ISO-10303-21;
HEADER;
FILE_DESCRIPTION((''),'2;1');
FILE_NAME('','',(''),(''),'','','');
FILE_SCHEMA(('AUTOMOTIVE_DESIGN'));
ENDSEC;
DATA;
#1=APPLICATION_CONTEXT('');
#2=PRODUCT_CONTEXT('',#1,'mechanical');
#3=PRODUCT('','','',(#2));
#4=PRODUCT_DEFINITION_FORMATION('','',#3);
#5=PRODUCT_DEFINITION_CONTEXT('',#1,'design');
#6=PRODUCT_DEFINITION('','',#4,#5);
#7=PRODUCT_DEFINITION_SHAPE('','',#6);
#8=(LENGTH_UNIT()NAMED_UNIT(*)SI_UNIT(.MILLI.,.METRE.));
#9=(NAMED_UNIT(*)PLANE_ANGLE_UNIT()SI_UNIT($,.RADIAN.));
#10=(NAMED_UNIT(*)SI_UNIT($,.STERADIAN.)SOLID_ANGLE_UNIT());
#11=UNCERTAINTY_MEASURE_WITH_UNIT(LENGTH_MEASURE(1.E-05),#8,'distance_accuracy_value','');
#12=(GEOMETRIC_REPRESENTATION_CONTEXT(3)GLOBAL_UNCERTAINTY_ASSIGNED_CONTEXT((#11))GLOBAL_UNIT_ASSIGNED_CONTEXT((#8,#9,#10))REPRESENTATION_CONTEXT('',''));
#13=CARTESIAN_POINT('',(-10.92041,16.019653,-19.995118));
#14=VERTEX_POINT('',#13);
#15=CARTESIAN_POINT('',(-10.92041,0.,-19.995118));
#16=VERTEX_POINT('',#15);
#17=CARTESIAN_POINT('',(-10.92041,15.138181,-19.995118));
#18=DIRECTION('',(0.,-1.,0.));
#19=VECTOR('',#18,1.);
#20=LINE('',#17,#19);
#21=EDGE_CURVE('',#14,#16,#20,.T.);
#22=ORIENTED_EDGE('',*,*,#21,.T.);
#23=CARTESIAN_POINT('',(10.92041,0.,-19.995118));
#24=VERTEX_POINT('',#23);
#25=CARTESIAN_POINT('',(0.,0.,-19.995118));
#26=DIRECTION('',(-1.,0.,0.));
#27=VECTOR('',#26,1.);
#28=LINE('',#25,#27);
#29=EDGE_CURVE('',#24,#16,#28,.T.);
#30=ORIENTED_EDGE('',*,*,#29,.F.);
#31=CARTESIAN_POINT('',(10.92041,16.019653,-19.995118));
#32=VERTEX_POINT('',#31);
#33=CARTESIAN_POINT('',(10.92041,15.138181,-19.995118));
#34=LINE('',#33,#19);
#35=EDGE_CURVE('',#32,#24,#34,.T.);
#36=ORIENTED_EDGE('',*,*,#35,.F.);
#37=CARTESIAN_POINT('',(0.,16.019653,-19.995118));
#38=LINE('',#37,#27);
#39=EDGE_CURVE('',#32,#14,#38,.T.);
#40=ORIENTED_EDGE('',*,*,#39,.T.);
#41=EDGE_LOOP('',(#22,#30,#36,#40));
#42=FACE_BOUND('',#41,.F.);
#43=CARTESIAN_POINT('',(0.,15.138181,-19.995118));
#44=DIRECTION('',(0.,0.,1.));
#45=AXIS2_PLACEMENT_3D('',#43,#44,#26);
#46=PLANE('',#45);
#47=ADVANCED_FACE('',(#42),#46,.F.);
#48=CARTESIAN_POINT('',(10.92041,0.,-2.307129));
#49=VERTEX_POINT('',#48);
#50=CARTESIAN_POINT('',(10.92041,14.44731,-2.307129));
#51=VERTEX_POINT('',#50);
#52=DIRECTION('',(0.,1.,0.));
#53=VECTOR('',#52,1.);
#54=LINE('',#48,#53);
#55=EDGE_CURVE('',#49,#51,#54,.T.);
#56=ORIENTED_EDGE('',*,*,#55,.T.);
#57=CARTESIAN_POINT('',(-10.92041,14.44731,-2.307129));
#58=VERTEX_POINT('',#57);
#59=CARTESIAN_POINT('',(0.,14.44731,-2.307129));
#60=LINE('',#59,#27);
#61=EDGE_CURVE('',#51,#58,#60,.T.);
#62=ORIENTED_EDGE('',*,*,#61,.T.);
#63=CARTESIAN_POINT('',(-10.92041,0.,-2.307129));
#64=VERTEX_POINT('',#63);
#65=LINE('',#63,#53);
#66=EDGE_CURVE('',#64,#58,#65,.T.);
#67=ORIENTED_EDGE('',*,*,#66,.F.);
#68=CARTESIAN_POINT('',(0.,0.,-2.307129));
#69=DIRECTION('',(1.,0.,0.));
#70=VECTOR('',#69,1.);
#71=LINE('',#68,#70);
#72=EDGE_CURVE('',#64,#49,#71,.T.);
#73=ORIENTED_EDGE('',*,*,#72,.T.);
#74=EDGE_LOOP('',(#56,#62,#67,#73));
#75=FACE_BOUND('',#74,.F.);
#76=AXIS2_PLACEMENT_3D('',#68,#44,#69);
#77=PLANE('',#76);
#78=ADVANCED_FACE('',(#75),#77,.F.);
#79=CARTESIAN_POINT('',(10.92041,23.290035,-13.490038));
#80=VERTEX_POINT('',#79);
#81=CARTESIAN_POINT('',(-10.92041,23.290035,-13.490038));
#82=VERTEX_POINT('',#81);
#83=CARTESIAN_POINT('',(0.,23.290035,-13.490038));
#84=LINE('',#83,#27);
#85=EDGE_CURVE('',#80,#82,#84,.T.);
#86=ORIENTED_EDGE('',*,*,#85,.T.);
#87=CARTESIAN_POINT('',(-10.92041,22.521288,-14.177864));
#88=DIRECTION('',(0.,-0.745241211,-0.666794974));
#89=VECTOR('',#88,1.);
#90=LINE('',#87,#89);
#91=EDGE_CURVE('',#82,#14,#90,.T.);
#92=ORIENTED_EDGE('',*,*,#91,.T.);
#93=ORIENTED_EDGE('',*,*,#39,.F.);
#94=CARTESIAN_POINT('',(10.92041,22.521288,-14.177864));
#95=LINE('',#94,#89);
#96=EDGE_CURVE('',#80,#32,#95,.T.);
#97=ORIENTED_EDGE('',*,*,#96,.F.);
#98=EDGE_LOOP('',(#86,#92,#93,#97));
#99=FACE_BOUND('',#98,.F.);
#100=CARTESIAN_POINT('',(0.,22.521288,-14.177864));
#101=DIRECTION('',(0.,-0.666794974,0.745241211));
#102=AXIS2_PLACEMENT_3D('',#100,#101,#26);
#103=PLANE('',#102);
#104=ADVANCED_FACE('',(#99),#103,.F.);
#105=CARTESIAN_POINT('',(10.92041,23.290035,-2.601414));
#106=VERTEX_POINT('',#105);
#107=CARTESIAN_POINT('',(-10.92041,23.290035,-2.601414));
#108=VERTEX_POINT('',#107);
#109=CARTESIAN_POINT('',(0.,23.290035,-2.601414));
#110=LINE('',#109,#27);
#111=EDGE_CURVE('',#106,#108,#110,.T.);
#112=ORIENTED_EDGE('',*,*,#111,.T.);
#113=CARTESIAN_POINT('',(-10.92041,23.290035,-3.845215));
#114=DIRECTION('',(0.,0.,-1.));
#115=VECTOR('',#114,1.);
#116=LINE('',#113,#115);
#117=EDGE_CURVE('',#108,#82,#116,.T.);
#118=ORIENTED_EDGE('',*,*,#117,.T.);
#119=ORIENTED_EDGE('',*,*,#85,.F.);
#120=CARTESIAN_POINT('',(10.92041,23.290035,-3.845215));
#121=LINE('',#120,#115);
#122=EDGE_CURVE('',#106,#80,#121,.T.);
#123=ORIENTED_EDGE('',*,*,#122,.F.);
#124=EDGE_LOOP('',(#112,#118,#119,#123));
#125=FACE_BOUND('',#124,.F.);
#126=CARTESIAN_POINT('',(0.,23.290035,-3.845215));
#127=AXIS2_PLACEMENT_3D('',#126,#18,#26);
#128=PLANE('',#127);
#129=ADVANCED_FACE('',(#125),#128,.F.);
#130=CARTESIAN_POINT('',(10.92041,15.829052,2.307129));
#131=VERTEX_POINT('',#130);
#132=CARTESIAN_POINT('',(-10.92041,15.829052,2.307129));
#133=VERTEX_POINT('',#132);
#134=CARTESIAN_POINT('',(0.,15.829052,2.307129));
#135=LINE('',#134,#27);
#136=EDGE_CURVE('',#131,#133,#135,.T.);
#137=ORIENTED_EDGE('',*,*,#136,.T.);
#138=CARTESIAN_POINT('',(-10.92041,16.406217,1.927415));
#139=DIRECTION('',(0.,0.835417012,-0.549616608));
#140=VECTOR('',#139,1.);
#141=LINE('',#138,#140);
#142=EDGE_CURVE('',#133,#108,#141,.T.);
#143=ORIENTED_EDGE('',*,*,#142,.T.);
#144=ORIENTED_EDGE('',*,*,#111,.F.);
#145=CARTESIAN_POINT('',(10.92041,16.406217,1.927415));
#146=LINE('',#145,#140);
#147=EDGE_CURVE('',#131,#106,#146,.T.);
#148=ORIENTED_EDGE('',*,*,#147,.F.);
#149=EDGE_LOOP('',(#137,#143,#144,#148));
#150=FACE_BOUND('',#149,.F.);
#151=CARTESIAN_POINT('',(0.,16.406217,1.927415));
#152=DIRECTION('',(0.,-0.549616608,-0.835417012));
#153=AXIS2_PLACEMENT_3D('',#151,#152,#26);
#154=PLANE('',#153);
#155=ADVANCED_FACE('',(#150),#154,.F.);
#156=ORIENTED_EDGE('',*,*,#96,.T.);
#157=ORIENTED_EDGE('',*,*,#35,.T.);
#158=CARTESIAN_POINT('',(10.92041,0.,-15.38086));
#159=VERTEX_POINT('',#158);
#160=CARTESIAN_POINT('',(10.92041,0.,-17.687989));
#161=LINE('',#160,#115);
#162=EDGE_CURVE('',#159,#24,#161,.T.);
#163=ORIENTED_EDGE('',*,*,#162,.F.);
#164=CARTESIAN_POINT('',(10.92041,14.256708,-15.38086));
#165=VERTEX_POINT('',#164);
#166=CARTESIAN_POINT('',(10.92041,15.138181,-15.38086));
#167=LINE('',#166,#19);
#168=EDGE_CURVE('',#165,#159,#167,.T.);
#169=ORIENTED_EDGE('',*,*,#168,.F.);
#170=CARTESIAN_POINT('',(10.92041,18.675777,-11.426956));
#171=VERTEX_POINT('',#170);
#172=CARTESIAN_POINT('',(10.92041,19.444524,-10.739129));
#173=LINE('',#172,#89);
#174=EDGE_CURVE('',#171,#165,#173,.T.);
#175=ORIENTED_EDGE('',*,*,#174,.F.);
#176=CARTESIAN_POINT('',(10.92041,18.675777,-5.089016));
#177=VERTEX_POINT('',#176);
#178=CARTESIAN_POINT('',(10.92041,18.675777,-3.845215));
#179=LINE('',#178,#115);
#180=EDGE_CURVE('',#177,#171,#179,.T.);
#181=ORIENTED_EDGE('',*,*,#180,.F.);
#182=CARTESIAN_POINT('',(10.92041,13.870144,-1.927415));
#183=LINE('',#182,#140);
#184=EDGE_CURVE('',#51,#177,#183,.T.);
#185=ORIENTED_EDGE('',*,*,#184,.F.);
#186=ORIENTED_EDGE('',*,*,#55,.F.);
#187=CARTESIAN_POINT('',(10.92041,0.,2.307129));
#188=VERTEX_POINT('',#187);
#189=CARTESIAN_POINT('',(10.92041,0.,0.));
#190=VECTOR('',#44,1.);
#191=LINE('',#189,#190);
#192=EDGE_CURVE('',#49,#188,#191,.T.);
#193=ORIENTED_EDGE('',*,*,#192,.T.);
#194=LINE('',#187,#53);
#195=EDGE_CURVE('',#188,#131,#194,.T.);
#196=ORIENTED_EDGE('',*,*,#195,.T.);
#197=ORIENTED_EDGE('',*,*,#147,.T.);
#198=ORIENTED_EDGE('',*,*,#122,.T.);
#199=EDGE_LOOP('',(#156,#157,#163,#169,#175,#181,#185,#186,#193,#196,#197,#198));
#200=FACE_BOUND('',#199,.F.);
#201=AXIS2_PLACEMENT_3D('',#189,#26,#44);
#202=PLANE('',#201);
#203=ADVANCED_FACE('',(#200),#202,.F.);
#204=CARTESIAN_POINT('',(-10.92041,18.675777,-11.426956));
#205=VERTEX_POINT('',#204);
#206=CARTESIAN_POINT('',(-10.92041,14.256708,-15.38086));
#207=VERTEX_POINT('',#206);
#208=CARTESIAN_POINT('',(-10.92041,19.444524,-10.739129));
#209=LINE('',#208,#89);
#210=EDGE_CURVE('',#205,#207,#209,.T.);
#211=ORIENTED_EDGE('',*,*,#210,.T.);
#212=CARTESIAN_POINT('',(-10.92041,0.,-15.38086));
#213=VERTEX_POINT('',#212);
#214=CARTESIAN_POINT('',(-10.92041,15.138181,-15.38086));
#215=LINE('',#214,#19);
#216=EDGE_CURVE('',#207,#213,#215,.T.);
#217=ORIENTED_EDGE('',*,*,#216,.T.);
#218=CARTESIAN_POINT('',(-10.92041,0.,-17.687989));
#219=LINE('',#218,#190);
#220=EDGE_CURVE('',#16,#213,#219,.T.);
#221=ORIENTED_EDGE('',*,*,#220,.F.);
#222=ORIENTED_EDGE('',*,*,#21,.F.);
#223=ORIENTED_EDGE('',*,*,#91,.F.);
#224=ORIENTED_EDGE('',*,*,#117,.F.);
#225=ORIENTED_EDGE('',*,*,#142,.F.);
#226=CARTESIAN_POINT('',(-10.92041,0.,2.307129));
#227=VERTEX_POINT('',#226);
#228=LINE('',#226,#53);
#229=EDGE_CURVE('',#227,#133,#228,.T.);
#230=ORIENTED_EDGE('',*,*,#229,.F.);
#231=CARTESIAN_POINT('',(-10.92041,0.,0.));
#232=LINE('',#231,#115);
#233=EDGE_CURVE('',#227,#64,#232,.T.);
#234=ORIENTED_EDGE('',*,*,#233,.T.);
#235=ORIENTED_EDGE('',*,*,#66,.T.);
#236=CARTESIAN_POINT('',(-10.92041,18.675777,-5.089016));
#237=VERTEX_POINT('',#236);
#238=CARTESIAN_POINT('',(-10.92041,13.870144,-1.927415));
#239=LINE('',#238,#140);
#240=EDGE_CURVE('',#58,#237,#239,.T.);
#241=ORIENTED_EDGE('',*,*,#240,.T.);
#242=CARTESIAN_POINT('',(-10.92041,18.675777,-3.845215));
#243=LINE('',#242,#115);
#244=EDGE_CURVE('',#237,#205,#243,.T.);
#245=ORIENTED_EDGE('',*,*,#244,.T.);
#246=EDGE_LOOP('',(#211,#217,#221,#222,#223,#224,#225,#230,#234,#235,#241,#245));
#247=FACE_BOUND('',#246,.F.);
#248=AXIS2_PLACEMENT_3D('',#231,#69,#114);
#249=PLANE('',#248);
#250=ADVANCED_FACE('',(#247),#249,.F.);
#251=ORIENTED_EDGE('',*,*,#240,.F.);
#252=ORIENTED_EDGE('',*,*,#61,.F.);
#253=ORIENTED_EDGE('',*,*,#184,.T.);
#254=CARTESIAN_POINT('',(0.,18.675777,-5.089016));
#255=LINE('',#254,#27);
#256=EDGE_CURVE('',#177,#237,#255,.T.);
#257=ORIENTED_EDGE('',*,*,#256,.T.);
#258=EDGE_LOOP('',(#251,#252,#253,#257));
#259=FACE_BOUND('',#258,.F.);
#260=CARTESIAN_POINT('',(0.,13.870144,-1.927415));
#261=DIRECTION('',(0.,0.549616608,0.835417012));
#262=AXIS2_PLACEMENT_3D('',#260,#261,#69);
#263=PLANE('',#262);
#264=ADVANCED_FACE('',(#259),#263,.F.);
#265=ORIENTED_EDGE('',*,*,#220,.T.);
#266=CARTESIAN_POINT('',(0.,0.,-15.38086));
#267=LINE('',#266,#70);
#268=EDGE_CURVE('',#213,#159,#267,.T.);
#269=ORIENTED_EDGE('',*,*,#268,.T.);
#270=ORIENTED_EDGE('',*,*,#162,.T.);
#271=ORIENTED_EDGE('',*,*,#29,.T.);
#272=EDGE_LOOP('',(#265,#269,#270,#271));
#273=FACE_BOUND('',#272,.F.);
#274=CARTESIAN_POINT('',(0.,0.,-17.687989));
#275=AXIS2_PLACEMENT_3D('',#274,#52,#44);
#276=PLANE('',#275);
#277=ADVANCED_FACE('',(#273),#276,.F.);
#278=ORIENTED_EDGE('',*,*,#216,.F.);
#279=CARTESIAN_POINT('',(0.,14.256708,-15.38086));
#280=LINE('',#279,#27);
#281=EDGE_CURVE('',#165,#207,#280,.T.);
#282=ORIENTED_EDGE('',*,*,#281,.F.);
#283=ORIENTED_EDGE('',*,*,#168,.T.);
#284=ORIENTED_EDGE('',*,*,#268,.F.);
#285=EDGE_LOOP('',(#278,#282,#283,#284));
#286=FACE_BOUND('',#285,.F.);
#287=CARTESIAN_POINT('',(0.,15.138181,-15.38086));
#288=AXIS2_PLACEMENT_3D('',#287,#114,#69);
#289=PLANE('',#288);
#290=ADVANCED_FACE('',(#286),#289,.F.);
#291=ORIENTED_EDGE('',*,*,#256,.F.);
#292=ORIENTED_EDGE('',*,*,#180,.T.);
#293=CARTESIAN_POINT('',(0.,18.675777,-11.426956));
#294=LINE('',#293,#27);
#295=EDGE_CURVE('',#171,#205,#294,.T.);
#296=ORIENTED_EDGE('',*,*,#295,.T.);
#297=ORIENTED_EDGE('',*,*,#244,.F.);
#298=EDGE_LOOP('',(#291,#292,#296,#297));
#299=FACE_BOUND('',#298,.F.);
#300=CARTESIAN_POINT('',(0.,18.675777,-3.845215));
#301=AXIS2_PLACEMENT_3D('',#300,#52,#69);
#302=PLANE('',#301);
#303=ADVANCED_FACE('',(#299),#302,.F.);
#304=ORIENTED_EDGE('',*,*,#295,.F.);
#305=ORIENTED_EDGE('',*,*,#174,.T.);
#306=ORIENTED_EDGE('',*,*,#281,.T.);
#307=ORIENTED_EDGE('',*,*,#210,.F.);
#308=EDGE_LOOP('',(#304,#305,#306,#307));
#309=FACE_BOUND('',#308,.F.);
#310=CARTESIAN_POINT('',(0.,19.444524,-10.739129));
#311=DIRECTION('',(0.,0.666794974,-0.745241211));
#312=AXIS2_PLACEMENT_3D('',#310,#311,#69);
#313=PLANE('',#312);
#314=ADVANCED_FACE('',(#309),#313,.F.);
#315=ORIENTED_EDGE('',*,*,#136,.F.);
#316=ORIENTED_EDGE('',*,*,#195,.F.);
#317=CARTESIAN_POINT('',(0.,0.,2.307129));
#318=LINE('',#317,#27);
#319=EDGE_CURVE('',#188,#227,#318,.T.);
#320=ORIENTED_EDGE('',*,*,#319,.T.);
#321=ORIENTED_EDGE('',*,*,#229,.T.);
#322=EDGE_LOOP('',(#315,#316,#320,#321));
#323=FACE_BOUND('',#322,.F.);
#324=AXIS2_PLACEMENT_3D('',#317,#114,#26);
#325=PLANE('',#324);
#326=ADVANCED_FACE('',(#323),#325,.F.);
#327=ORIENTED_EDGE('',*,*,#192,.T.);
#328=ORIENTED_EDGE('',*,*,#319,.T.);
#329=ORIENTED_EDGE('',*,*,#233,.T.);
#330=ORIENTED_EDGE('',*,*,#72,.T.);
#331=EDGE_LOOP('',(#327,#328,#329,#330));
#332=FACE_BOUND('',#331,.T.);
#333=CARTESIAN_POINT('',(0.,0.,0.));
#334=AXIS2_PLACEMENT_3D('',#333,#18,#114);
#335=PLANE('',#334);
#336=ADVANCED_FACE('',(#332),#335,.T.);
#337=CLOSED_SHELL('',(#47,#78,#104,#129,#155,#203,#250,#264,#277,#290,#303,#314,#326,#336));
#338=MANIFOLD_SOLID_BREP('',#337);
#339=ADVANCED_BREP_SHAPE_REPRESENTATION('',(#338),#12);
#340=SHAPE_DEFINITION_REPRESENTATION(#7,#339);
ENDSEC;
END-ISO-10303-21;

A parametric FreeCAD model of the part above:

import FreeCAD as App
import Part
import Sketcher
from FreeCAD import Vector
Q = App.Units.Quantity


def add_polygon(sketch, points):
    """Adds a closed chain of lines whose ends are joined by coincident constraints."""
    first, n = sketch.GeometryCount, len(points)
    for a, b in zip(points, points[1:] + points[:1]):
        sketch.addGeometry(Part.LineSegment(App.Vector(*a, 0), App.Vector(*b, 0)), False)
    for i in range(n):
        sketch.addConstraint(Sketcher.Constraint("Coincident", first + i, 2, first + (i + 1) % n, 1))

doc = App.newDocument("Part")
body = doc.addObject("PartDesign::Body", "Body")

# Sketch on XZ plane
sketch1 = body.newObject("Sketcher::SketchObject", "Sketch")
sketch1.AttachmentSupport = (doc.getObject("XZ_Plane"), [""])
sketch1.MapMode = "FlatFace"
add_polygon(sketch1, [(-10.9, 2.3), (-10.9, -2.3), (10.9, -2.3), (10.9, 2.3)])  # lines 0-3
sketch1.addConstraint([
    Sketcher.Constraint("Vertical", 0),
    Sketcher.Constraint("Horizontal", 1),
    Sketcher.Constraint("Vertical", 2),
    Sketcher.Constraint("Horizontal", 3),
    Sketcher.Constraint("Symmetric", 0, 2, 2, 2, -1, 1),
    Sketcher.Constraint("DistanceX", 1, 1, 1, 2, Q("21.84082 mm")),
    Sketcher.Constraint("DistanceY", 0, 2, 0, 1, Q("4.614258 mm")),
])

# Sketch on YZ plane
sketch2 = body.newObject("Sketcher::SketchObject", "Sketch001")
sketch2.AttachmentSupport = (doc.getObject("YZ_Plane"), [""])
sketch2.MapMode = "FlatFace"
sketch2.addGeometry([
    Part.LineSegment(Vector(0, 0, 0), Vector(15, 0, 0)),  # 0
    Part.LineSegment(Vector(15, 0, 0), Vector(21, -4, 0)),  # 1
    Part.LineSegment(Vector(21, -4, 0), Vector(21, -12, 0)),  # 2
    Part.LineSegment(Vector(21, -12, 0), Vector(15, -18, 0)),  # 3
    Part.LineSegment(Vector(15, -18, 0), Vector(0, -18, 0)),  # 4
], False)
sketch2.addConstraint([
    Sketcher.Constraint("Coincident", 0, 2, 1, 1),
    Sketcher.Constraint("Coincident", 1, 2, 2, 1),
    Sketcher.Constraint("Coincident", 2, 2, 3, 1),
    Sketcher.Constraint("Coincident", 3, 2, 4, 1),
    Sketcher.Constraint("Horizontal", 0),
    Sketcher.Constraint("Vertical", 2),
    Sketcher.Constraint("Horizontal", 4),
    Sketcher.Constraint("Coincident", 0, 1, -1, 1),
    Sketcher.Constraint("PointOnObject", 4, 2, -2),
    Sketcher.Constraint("Vertical", 0, 2, 3, 2),
    Sketcher.Constraint("DistanceX", 0, 1, 0, 2, Q("15.138181 mm")),
    Sketcher.Constraint("DistanceY", 2, 2, 2, 1, Q("8.613282 mm")),
    Sketcher.Constraint("Distance", 3, Q("7.84273 mm")),
    Sketcher.Constraint("DistanceY", 3, 2, -1, 1, Q("17.687989 mm")),
    Sketcher.Constraint("Distance", 1, Q("6.996177 mm")),
])
doc.recompute()

additivepipe = body.newObject("PartDesign::AdditivePipe", "AdditivePipe")
additivepipe.Profile = sketch1
additivepipe.Spine = (sketch2, ["Edge1", "Edge2", "Edge3", "Edge4", "Edge5"])
additivepipe.Transition = "Right corner"

doc.recompute()
